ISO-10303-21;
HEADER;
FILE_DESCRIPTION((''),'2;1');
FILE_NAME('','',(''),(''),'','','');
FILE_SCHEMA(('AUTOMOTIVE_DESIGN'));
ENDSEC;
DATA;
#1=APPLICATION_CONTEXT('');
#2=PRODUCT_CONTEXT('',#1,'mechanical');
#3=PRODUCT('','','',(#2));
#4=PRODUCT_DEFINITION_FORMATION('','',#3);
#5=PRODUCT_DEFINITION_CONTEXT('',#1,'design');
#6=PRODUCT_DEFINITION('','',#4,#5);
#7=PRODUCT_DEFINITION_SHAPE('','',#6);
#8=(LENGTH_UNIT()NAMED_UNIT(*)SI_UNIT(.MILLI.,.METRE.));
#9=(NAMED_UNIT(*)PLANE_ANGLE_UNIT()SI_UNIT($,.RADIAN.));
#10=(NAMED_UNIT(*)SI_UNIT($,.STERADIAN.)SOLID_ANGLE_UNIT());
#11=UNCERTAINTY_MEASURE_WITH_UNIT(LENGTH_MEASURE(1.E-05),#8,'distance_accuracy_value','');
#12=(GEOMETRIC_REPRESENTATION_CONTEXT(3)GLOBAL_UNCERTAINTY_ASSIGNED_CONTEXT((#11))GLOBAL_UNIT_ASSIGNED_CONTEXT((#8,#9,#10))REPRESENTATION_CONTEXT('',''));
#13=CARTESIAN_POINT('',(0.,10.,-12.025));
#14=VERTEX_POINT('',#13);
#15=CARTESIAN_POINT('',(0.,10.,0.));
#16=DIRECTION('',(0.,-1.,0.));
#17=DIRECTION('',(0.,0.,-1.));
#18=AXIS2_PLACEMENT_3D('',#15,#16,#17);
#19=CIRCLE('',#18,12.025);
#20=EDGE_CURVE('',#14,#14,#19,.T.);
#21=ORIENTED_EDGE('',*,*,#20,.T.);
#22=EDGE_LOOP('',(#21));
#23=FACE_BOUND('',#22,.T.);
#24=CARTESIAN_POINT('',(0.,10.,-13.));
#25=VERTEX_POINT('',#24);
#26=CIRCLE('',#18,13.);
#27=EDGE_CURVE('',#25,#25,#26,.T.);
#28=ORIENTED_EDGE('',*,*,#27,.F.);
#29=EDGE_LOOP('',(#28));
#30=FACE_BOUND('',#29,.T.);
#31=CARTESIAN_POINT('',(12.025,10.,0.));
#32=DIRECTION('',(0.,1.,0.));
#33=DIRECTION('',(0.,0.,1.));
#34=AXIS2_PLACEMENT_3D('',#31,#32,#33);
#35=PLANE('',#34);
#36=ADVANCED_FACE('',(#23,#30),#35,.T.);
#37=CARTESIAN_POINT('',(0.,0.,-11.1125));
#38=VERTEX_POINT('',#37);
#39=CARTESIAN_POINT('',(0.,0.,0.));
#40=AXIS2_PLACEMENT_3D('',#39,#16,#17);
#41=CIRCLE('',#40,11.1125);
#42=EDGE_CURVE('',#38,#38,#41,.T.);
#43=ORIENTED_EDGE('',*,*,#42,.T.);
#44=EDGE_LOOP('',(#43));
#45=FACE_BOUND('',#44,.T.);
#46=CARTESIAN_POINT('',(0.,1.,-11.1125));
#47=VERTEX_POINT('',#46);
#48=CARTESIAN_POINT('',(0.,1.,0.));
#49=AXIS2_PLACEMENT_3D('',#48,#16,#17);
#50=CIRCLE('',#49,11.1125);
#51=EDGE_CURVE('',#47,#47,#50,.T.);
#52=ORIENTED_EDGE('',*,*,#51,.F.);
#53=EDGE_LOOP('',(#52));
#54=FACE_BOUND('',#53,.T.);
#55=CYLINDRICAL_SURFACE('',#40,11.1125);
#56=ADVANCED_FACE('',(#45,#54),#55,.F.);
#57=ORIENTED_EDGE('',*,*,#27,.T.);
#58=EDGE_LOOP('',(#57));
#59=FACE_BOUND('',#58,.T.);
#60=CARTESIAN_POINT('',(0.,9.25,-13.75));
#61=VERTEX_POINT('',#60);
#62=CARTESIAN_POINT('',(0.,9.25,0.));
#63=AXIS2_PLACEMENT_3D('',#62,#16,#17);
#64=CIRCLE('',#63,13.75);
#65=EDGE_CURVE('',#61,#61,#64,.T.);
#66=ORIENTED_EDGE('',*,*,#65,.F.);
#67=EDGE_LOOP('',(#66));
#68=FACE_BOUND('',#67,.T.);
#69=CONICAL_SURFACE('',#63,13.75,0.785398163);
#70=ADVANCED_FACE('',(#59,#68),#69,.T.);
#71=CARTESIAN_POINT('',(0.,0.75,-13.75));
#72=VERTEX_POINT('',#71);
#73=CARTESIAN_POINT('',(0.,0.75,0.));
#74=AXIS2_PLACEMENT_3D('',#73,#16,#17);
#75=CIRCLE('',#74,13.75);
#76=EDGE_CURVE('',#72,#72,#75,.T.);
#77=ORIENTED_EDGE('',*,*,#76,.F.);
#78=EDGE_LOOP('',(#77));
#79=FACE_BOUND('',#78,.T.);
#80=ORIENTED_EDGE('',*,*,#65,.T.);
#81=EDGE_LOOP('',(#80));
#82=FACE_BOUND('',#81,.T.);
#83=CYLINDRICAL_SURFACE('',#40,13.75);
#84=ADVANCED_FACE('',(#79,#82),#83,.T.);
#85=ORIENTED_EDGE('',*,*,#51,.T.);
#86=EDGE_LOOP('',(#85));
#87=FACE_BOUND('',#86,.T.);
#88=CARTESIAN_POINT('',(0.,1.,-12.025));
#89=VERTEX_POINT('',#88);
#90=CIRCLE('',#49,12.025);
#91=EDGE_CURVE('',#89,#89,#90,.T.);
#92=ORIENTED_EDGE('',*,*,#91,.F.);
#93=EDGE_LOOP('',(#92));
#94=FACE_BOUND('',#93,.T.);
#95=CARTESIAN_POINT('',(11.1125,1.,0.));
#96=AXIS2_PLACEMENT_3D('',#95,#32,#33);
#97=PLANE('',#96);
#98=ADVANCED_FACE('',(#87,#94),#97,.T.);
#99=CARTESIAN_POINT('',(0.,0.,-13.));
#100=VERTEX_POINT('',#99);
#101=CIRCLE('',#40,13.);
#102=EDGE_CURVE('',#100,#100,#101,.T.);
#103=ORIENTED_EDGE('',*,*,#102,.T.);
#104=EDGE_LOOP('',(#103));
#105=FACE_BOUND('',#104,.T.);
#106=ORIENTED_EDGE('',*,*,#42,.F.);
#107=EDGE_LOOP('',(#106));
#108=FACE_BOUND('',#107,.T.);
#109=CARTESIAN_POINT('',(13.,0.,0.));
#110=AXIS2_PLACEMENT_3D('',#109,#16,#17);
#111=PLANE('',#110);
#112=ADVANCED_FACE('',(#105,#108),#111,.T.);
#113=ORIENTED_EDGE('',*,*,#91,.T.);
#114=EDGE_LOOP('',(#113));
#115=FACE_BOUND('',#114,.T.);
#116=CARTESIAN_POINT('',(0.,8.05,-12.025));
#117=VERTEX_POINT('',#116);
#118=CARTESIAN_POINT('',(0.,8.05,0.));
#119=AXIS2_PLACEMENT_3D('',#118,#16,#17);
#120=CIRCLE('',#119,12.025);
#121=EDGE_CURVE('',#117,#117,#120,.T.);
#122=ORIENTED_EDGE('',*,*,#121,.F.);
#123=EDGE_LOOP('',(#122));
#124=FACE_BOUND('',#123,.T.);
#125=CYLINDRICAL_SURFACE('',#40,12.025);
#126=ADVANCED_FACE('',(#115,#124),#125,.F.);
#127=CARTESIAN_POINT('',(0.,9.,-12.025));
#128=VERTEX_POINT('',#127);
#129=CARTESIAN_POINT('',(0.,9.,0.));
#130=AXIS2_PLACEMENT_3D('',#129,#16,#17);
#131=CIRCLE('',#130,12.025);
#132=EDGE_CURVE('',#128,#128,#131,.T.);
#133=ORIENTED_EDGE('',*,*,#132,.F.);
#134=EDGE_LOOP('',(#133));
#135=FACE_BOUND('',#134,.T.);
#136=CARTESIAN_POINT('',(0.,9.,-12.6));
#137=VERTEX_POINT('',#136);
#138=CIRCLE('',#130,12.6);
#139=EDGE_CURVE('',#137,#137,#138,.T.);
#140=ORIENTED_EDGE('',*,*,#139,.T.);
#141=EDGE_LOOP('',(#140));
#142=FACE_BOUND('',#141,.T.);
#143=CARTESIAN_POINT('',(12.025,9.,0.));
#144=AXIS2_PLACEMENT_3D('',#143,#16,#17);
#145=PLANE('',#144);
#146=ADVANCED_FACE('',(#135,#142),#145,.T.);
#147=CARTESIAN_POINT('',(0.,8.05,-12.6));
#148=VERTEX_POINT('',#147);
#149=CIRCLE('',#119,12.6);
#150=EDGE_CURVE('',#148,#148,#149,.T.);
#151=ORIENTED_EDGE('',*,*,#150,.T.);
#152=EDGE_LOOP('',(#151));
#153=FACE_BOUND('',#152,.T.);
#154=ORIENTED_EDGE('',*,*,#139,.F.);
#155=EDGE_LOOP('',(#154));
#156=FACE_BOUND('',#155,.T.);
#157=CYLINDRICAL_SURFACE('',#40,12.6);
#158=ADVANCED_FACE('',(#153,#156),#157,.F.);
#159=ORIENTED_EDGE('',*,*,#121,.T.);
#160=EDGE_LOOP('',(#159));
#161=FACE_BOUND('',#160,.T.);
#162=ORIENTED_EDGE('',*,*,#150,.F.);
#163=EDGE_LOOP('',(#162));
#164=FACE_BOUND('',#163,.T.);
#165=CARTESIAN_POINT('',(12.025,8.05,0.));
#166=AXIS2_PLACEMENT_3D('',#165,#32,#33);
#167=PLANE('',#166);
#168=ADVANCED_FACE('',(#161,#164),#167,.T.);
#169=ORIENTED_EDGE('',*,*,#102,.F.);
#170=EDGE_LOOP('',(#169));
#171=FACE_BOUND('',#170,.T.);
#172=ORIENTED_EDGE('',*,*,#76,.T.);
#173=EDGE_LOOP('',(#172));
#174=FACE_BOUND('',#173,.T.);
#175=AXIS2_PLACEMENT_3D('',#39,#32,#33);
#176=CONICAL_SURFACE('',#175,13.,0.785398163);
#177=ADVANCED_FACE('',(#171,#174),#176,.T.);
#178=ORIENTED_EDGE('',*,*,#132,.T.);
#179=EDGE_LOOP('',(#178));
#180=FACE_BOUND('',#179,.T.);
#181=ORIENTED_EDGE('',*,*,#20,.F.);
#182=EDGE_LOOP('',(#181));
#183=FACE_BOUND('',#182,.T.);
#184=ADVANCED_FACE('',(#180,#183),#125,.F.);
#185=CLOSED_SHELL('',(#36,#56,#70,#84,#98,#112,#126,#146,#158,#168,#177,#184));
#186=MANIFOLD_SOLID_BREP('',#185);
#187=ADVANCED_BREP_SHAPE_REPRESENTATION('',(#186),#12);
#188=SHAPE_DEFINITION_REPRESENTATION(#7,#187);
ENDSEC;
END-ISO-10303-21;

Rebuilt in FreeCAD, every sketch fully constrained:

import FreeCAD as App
import Part
import Sketcher


def add_polygon(sketch, points):
    """Adds a closed chain of lines whose ends are joined by coincident constraints."""
    first, n = sketch.GeometryCount, len(points)
    for a, b in zip(points, points[1:] + points[:1]):
        sketch.addGeometry(Part.LineSegment(App.Vector(*a, 0), App.Vector(*b, 0)), False)
    for i in range(n):
        sketch.addConstraint(Sketcher.Constraint("Coincident", first + i, 2, first + (i + 1) % n, 1))

doc = App.newDocument("Part")
body = doc.addObject("PartDesign::Body", "Body")

# Sketch on XY plane
sketch1 = body.newObject("Sketcher::SketchObject", "Sketch")
sketch1.AttachmentSupport = (doc.getObject("XY_Plane"), [""])
sketch1.MapMode = "FlatFace"
add_polygon(sketch1, [(11.1125, 1), (11.1125, 0), (13, 0), (13.75, 0.75), (13.75, 9.25), (13, 10), (12.025, 10), (12.025, 9), (12.6, 9), (12.6, 8.05), (12.025, 8.05), (12.025, 1)])  # lines 0-11
sketch1.addConstraint(Sketcher.Constraint("Vertical", 0))
sketch1.addConstraint(Sketcher.Constraint("Horizontal", 1))
sketch1.addConstraint(Sketcher.Constraint("Vertical", 3))
sketch1.addConstraint(Sketcher.Constraint("Horizontal", 5))
sketch1.addConstraint(Sketcher.Constraint("Vertical", 6))
sketch1.addConstraint(Sketcher.Constraint("Horizontal", 7))
sketch1.addConstraint(Sketcher.Constraint("Vertical", 8))
sketch1.addConstraint(Sketcher.Constraint("Horizontal", 9))
sketch1.addConstraint(Sketcher.Constraint("Vertical", 10))
sketch1.addConstraint(Sketcher.Constraint("Horizontal", 11))
sketch1.addConstraint(Sketcher.Constraint("PointOnObject", 0, 2, -1))
sketch1.addConstraint(Sketcher.Constraint("Perpendicular", 2, 4))
sketch1.addConstraint(Sketcher.Constraint("Vertical", 1, 2, 4, 2))
sketch1.addConstraint(Sketcher.Constraint("Vertical", 6, 2, 9, 2))
sketch1.addConstraint(Sketcher.Constraint("Equal", 0, 6))
sketch1.addConstraint(Sketcher.Constraint("Equal", 2, 4))
sketch1.addConstraint(Sketcher.Constraint("DistanceY", 0, 2, 0, 1, 1.0))
sketch1.addConstraint(Sketcher.Constraint("DistanceY", 3, 1, 3, 2, 8.5))
sketch1.addConstraint(Sketcher.Constraint("DistanceX", -1, 1, 1, 2, 13.0))
sketch1.addConstraint(Sketcher.Constraint("DistanceY", -1, 1, 4, 2, 10.0))
sketch1.addConstraint(Sketcher.Constraint("DistanceY", 8, 2, 8, 1, 0.95))
sketch1.addConstraint(Sketcher.Constraint("DistanceX", -1, 1, 7, 2, 12.6))
sketch1.addConstraint(Sketcher.Constraint("DistanceX", 5, 2, 5, 1, 0.975))
sketch1.addConstraint(Sketcher.Constraint("DistanceX", 1, 1, 1, 2, 1.8875))
revolution = body.newObject("PartDesign::Revolution", "Revolution")
revolution.Profile = sketch1
revolution.ReferenceAxis = (sketch1, ["V_Axis"])
revolution.Angle = 360

doc.recompute()
